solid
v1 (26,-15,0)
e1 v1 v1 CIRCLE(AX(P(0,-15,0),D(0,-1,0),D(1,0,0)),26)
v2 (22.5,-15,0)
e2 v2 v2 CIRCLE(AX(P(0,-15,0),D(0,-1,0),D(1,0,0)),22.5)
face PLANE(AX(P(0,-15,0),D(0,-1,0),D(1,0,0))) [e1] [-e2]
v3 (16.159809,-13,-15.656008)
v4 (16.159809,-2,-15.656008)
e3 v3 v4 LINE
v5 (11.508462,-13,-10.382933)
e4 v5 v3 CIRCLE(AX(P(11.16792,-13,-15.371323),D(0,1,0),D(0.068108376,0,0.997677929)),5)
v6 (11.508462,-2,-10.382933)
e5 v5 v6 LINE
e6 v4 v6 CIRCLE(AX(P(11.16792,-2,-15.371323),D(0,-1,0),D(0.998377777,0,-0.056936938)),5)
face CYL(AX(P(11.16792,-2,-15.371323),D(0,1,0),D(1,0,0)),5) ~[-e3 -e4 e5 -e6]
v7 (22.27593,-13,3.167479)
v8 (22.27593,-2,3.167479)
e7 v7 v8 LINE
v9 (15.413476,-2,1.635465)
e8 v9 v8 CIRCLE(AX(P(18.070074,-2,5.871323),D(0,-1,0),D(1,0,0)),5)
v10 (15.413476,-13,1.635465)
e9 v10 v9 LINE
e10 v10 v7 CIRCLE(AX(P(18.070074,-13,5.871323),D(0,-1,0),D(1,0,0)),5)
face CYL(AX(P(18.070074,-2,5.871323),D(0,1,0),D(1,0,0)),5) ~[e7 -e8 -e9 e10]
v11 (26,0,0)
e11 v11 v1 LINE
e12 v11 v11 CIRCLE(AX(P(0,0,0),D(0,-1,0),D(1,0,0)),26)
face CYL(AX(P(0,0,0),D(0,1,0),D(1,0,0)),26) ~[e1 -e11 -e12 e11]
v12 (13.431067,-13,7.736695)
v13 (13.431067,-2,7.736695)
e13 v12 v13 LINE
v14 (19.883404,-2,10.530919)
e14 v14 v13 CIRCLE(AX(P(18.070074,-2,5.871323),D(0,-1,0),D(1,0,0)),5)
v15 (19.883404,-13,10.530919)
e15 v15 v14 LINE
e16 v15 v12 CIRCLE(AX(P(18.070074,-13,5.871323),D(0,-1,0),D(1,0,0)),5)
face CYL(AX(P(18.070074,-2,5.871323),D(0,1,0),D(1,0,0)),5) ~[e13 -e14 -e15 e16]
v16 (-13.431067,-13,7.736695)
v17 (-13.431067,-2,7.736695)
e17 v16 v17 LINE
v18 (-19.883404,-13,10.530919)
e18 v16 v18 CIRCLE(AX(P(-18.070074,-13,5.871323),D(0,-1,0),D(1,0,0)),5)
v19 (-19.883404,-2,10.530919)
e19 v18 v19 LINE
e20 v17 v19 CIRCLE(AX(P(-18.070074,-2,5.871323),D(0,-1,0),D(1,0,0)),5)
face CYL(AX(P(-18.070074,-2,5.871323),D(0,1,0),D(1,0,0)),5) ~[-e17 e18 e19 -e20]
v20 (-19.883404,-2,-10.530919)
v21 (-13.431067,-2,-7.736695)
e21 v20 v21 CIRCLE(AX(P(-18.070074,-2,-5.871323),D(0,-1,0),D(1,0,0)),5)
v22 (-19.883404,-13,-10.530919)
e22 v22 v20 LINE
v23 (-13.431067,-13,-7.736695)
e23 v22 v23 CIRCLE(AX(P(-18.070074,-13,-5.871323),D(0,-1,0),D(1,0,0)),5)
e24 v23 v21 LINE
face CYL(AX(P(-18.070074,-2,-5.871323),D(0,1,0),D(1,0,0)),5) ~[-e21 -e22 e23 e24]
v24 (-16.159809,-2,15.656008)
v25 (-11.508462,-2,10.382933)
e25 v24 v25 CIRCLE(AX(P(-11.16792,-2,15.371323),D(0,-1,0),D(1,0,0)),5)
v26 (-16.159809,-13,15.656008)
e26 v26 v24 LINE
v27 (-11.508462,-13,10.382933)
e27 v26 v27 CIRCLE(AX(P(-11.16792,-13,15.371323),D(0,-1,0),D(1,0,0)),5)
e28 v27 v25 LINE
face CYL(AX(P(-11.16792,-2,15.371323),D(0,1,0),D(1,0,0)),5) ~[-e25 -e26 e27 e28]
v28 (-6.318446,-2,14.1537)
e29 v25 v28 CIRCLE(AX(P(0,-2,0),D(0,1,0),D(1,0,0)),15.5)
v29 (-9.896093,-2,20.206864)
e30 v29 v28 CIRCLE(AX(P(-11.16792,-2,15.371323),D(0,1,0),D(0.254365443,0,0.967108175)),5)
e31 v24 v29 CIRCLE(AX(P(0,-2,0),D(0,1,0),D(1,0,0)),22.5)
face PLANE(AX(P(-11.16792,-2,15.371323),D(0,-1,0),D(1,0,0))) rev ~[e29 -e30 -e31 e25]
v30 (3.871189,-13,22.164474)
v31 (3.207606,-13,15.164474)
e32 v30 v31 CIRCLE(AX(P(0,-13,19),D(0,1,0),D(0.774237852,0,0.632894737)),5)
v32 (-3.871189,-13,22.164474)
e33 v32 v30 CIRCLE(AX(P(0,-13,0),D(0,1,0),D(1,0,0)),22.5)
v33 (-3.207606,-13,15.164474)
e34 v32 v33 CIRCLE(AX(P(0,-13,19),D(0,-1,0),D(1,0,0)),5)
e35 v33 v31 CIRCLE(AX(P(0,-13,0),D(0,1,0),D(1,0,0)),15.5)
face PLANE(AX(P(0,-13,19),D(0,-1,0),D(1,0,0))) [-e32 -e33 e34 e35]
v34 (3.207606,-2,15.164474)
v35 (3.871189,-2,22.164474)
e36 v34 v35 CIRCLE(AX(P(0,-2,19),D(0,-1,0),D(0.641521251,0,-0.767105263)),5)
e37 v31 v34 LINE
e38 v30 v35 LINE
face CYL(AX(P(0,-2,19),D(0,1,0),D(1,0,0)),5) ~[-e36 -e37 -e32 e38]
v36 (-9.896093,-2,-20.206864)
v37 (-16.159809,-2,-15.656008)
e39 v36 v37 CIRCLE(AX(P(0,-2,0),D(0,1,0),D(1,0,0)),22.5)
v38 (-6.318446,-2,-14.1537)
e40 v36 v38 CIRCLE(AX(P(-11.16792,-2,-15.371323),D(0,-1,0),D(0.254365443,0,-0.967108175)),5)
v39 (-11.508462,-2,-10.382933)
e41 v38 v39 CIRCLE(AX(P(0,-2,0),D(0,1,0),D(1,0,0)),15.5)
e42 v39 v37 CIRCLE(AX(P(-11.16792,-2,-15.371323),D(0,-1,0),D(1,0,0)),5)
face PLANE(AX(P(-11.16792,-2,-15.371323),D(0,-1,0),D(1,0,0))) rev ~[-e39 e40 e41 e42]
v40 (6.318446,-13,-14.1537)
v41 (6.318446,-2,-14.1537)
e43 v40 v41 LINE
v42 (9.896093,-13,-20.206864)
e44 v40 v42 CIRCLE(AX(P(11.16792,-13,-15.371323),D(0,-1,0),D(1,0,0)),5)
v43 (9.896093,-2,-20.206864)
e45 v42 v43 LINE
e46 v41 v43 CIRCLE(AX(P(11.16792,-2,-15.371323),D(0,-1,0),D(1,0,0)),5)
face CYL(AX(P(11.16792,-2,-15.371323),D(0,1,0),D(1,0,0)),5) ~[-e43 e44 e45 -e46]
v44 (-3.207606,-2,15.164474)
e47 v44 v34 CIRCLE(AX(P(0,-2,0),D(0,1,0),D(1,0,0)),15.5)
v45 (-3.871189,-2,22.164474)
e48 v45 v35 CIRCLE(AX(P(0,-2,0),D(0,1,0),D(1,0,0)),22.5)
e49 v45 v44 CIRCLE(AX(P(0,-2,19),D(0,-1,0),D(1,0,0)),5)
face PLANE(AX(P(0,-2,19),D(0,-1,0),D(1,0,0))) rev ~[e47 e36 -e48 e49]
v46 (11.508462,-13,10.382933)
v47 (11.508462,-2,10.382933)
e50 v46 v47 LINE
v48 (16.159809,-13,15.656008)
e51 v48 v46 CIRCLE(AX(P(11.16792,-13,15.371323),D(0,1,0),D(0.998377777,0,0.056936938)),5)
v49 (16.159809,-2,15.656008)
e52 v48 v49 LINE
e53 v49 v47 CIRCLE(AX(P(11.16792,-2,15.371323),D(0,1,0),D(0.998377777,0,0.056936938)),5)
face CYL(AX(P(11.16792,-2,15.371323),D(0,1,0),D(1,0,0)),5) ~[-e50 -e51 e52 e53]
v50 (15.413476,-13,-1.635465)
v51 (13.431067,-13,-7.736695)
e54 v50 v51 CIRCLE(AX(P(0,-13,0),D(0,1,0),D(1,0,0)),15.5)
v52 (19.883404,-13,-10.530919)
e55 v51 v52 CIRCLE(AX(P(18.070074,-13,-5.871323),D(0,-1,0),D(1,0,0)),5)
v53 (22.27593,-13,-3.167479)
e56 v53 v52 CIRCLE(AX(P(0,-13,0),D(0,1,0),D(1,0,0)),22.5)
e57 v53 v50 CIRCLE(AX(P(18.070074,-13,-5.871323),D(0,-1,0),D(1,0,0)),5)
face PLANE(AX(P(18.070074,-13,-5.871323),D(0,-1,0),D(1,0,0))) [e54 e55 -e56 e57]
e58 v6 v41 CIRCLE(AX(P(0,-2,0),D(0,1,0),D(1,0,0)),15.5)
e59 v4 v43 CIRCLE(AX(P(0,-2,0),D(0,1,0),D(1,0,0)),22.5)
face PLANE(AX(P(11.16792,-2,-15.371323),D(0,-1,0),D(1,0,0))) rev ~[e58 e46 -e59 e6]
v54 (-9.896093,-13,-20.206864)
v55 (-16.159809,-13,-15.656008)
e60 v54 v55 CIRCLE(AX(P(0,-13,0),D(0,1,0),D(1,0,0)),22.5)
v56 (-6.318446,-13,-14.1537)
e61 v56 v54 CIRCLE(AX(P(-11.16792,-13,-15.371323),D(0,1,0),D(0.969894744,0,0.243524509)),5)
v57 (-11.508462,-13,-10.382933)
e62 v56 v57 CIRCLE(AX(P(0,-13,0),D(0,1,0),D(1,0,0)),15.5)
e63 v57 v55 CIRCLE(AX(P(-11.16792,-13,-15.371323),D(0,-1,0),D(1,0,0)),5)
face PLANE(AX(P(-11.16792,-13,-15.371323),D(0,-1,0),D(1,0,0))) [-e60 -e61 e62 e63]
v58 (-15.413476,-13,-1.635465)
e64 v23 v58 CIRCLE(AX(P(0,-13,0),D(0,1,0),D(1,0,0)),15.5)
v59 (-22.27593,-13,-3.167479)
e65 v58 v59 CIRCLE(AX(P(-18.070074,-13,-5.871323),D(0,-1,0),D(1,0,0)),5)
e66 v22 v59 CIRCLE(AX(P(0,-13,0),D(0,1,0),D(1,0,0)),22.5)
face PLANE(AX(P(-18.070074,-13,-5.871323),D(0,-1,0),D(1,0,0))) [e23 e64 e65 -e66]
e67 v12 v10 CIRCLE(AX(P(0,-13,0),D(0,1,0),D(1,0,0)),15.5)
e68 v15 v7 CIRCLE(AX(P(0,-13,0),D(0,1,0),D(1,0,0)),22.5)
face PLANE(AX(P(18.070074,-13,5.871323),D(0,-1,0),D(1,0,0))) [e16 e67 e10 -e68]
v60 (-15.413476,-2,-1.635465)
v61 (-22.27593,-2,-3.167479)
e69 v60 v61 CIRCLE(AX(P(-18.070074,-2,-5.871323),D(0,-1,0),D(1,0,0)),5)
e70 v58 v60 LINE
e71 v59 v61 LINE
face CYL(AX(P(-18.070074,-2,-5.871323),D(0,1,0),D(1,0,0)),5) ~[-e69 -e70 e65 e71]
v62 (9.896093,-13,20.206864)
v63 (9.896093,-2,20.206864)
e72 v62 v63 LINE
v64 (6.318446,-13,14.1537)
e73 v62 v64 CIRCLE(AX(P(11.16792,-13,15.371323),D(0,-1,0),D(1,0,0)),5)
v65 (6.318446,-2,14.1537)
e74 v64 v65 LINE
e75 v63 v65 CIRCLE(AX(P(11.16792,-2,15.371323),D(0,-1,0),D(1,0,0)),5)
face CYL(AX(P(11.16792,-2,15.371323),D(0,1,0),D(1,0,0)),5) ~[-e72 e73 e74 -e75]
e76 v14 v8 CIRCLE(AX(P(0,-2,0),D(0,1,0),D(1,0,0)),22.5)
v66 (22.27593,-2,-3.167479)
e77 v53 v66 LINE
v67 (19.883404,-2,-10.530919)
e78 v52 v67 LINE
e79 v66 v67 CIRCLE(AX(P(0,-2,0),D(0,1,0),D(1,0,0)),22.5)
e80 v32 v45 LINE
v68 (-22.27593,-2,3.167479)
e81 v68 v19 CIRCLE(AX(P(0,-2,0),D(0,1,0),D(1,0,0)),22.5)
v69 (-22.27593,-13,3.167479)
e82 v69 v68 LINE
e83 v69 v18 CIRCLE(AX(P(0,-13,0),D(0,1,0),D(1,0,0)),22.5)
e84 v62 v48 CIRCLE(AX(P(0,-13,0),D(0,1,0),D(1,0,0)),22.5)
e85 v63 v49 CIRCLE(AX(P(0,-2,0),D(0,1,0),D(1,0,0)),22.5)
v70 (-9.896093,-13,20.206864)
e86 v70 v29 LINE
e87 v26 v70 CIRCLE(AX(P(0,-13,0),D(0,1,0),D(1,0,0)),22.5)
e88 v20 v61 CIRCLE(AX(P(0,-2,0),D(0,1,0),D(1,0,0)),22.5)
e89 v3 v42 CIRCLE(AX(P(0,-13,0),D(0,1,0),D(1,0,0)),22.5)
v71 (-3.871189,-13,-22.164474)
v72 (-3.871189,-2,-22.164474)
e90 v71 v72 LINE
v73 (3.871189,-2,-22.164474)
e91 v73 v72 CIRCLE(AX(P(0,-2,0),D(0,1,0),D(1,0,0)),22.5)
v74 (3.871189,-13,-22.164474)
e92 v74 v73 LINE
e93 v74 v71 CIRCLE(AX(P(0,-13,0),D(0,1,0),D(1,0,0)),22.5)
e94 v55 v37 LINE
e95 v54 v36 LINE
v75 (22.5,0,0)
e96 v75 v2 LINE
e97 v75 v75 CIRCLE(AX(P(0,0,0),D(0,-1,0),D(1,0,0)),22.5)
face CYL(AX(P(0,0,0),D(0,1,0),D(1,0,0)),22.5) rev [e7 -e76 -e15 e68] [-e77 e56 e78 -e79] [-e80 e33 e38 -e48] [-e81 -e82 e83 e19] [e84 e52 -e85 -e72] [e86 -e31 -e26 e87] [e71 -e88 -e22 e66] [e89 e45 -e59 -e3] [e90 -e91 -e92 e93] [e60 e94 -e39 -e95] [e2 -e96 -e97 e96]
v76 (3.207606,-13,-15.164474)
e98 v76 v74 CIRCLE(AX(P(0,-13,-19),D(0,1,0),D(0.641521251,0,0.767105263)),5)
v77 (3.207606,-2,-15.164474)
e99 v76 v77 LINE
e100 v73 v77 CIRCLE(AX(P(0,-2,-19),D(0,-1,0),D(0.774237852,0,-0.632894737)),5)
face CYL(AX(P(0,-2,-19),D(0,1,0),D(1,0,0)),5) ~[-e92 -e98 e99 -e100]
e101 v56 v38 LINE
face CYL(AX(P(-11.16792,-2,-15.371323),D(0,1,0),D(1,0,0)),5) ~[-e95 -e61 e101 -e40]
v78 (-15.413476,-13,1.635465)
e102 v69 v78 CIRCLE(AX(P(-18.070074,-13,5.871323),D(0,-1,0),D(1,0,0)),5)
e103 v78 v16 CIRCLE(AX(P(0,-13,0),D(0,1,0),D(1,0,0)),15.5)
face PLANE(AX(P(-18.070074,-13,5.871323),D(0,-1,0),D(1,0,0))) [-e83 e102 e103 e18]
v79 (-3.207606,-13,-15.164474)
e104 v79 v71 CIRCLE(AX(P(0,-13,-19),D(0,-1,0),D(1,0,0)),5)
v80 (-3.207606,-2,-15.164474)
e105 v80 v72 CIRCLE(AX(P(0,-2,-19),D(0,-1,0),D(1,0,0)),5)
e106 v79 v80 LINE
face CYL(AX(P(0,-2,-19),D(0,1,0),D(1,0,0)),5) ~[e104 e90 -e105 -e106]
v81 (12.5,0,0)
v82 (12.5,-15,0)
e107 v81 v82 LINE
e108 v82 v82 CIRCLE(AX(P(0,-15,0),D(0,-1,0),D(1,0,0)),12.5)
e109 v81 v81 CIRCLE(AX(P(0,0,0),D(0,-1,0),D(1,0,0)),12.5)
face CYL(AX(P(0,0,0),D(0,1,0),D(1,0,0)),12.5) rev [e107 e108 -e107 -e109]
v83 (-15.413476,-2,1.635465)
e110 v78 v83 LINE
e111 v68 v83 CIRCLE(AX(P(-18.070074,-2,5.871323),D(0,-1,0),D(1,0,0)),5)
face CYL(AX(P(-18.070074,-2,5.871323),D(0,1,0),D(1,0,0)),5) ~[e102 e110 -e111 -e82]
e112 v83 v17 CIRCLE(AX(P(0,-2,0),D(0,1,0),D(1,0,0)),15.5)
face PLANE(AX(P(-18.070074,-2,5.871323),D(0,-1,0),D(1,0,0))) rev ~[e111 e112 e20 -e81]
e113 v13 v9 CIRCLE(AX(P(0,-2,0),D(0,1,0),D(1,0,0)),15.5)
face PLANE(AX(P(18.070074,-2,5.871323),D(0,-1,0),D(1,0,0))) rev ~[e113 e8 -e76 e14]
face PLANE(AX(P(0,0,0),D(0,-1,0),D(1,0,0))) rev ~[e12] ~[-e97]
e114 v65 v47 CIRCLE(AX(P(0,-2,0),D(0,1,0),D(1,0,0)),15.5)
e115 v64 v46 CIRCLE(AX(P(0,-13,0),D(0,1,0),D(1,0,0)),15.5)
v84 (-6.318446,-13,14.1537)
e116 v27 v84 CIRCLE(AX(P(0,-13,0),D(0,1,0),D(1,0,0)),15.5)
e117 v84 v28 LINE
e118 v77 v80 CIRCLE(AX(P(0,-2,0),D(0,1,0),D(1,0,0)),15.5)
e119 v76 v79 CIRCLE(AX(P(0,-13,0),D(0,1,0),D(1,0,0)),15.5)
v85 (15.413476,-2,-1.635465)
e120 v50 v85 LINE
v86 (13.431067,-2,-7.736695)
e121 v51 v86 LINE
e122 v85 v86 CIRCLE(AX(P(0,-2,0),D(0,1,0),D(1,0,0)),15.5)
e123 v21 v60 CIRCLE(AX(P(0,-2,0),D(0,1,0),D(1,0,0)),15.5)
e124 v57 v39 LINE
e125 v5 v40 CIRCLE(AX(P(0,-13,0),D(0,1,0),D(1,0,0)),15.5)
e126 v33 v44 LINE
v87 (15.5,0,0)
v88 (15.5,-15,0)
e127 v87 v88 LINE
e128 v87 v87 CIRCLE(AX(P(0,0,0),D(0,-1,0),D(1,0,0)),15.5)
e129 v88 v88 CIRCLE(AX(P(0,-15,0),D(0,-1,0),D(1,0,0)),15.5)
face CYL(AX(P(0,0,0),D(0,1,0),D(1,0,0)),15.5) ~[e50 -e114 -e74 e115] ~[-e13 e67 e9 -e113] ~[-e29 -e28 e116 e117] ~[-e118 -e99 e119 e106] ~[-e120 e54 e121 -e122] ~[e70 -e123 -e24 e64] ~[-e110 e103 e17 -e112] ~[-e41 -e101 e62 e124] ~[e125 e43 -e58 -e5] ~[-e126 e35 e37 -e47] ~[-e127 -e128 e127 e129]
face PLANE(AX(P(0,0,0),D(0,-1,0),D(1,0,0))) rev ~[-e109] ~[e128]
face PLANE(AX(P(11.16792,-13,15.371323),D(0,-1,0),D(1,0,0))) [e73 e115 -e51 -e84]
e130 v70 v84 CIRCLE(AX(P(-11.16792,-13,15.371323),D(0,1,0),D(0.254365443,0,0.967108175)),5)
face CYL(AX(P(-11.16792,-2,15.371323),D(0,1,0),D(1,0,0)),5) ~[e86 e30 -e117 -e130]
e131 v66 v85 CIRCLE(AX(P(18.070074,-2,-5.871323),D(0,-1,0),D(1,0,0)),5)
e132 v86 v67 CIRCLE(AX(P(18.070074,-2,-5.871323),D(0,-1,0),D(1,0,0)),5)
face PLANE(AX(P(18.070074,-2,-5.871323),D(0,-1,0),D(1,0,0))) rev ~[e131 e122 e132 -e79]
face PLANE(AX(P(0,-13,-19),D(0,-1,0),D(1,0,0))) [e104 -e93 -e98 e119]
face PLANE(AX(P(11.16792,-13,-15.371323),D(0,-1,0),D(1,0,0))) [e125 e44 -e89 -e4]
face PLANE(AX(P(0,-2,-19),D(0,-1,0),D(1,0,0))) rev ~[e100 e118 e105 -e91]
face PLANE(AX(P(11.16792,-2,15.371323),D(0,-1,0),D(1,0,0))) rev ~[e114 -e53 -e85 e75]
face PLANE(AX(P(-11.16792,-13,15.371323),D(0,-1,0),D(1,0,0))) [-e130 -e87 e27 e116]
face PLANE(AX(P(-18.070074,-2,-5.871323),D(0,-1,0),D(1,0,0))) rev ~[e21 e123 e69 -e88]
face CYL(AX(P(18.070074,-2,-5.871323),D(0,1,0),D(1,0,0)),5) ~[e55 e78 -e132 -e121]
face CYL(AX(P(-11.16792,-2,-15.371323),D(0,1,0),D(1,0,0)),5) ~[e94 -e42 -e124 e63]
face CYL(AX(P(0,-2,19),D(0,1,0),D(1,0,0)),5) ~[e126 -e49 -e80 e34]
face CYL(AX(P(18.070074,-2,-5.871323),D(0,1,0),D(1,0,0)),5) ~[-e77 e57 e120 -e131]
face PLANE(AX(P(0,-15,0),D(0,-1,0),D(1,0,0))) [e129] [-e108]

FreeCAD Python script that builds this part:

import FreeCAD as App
import Part
import Sketcher
from FreeCAD import Vector
Q = App.Units.Quantity

doc = App.newDocument("Part")
body = doc.addObject("PartDesign::Body", "Body")
body.AllowCompound = True

sketch1 = body.newObject("Sketcher::SketchObject", "Sketch")
sketch1.AttachmentSupport = (doc.getObject("XZ_Plane"), [""])
sketch1.MapMode = "FlatFace"
sketch1.addGeometry(Part.Circle(Vector(0, 0, 0), Vector(0, 0, 1), 26), False)
sketch1.addGeometry(Part.Circle(Vector(0, 0, 0), Vector(0, 0, 1), 22.5), False)
sketch1.addGeometry(Part.Circle(Vector(0, 0, 0), Vector(0, 0, 1), 15.5), False)
sketch1.addGeometry(Part.Circle(Vector(0, 0, 0), Vector(0, 0, 1), 12.5), False)
sketch1.addConstraint(Sketcher.Constraint("Coincident", 0, 3, -1, 1))
sketch1.addConstraint(Sketcher.Constraint("Coincident", 1, 3, -1, 1))
sketch1.addConstraint(Sketcher.Constraint("Coincident", 2, 3, -1, 1))
sketch1.addConstraint(Sketcher.Constraint("Coincident", 3, 3, -1, 1))
sketch1.addConstraint(Sketcher.Constraint("Diameter", 0, Q("52 mm")))
sketch1.addConstraint(Sketcher.Constraint("Diameter", 1, Q("45 mm")))
sketch1.addConstraint(Sketcher.Constraint("Diameter", 2, Q("31 mm")))
sketch1.addConstraint(Sketcher.Constraint("Diameter", 3, Q("25 mm")))
pad1 = body.newObject("PartDesign::Pad", "Pad")
pad1.Profile = sketch1
pad1.Length = 15

sketch2 = body.newObject("Sketcher::SketchObject", "Sketch001")
sketch2.AttachmentSupport = (doc.getObject("XZ_Plane"), [""])
sketch2.MapMode = "FlatFace"
sketch2.AttachmentOffset = App.Placement(Vector(0, 0, 2), App.Rotation())
sketch2.addGeometry(Part.Circle(Vector(0, 19, 0), Vector(0, 0, 1), 5), False)
sketch2.addGeometry(Part.Circle(Vector(11.16792, 15.371323, 0), Vector(0, 0, 1), 5), False)
sketch2.addGeometry(Part.Circle(Vector(18.070074, 5.871323, 0), Vector(0, 0, 1), 5), False)
sketch2.addGeometry(Part.Circle(Vector(18.070074, -5.871323, 0), Vector(0, 0, 1), 5), False)
sketch2.addGeometry(Part.Circle(Vector(11.16792, -15.371323, 0), Vector(0, 0, 1), 5), False)
sketch2.addGeometry(Part.Circle(Vector(0, -19, 0), Vector(0, 0, 1), 5), False)
sketch2.addGeometry(Part.Circle(Vector(-11.16792, -15.371323, 0), Vector(0, 0, 1), 5), False)
sketch2.addGeometry(Part.Circle(Vector(-18.070074, -5.871323, 0), Vector(0, 0, 1), 5), False)
sketch2.addGeometry(Part.Circle(Vector(-18.070074, 5.871323, 0), Vector(0, 0, 1), 5), False)
sketch2.addGeometry(Part.Circle(Vector(-11.16792, 15.371323, 0), Vector(0, 0, 1), 5), False)
sketch2.addConstraint(Sketcher.Constraint("Equal", 0, 1))
sketch2.addConstraint(Sketcher.Constraint("Equal", 1, 2))
sketch2.addConstraint(Sketcher.Constraint("Equal", 2, 3))
sketch2.addConstraint(Sketcher.Constraint("Equal", 3, 4))
sketch2.addConstraint(Sketcher.Constraint("Equal", 4, 5))
sketch2.addConstraint(Sketcher.Constraint("Equal", 5, 6))
sketch2.addConstraint(Sketcher.Constraint("Equal", 6, 7))
sketch2.addConstraint(Sketcher.Constraint("Equal", 7, 8))
sketch2.addConstraint(Sketcher.Constraint("Equal", 8, 9))
sketch2.addConstraint(Sketcher.Constraint("Symmetric", 0, 3, 5, 3, -1, 1))
sketch2.addConstraint(Sketcher.Constraint("Symmetric", 1, 3, 6, 3, -1, 1))
sketch2.addConstraint(Sketcher.Constraint("Symmetric", 2, 3, 7, 3, -1, 1))
sketch2.addConstraint(Sketcher.Constraint("Symmetric", 3, 3, 8, 3, -1, 1))
sketch2.addConstraint(Sketcher.Constraint("Symmetric", 4, 3, 9, 3, -1, 1))
sketch2.addConstraint(Sketcher.Constraint("Symmetric", 4, 3, 6, 3, -2))
sketch2.addConstraint(Sketcher.Constraint("Symmetric", 3, 3, 7, 3, -2))
sketch2.addConstraint(Sketcher.Constraint("PointOnObject", 0, 3, -2))
sketch2.addConstraint(Sketcher.Constraint("Diameter", 0, Q("10 mm")))
sketch2.addConstraint(Sketcher.Constraint("DistanceY", -1, 1, 0, 3, Q("19 mm")))
sketch2.addConstraint(Sketcher.Constraint("DistanceY", 2, 3, 1, 3, Q("9.5 mm")))
sketch2.addConstraint(Sketcher.Constraint("DistanceX", -1, 1, 1, 3, Q("11.16792 mm")))
sketch2.addConstraint(Sketcher.Constraint("DistanceX", 7, 3, 3, 3, Q("36.140148 mm")))
sketch2.addConstraint(Sketcher.Constraint("DistanceY", -1, 1, 1, 3, Q("15.371323 mm")))
pad2 = body.newObject("PartDesign::Pad", "Pad001")
pad2.Profile = sketch2
pad2.Length = 11

doc.recompute()
